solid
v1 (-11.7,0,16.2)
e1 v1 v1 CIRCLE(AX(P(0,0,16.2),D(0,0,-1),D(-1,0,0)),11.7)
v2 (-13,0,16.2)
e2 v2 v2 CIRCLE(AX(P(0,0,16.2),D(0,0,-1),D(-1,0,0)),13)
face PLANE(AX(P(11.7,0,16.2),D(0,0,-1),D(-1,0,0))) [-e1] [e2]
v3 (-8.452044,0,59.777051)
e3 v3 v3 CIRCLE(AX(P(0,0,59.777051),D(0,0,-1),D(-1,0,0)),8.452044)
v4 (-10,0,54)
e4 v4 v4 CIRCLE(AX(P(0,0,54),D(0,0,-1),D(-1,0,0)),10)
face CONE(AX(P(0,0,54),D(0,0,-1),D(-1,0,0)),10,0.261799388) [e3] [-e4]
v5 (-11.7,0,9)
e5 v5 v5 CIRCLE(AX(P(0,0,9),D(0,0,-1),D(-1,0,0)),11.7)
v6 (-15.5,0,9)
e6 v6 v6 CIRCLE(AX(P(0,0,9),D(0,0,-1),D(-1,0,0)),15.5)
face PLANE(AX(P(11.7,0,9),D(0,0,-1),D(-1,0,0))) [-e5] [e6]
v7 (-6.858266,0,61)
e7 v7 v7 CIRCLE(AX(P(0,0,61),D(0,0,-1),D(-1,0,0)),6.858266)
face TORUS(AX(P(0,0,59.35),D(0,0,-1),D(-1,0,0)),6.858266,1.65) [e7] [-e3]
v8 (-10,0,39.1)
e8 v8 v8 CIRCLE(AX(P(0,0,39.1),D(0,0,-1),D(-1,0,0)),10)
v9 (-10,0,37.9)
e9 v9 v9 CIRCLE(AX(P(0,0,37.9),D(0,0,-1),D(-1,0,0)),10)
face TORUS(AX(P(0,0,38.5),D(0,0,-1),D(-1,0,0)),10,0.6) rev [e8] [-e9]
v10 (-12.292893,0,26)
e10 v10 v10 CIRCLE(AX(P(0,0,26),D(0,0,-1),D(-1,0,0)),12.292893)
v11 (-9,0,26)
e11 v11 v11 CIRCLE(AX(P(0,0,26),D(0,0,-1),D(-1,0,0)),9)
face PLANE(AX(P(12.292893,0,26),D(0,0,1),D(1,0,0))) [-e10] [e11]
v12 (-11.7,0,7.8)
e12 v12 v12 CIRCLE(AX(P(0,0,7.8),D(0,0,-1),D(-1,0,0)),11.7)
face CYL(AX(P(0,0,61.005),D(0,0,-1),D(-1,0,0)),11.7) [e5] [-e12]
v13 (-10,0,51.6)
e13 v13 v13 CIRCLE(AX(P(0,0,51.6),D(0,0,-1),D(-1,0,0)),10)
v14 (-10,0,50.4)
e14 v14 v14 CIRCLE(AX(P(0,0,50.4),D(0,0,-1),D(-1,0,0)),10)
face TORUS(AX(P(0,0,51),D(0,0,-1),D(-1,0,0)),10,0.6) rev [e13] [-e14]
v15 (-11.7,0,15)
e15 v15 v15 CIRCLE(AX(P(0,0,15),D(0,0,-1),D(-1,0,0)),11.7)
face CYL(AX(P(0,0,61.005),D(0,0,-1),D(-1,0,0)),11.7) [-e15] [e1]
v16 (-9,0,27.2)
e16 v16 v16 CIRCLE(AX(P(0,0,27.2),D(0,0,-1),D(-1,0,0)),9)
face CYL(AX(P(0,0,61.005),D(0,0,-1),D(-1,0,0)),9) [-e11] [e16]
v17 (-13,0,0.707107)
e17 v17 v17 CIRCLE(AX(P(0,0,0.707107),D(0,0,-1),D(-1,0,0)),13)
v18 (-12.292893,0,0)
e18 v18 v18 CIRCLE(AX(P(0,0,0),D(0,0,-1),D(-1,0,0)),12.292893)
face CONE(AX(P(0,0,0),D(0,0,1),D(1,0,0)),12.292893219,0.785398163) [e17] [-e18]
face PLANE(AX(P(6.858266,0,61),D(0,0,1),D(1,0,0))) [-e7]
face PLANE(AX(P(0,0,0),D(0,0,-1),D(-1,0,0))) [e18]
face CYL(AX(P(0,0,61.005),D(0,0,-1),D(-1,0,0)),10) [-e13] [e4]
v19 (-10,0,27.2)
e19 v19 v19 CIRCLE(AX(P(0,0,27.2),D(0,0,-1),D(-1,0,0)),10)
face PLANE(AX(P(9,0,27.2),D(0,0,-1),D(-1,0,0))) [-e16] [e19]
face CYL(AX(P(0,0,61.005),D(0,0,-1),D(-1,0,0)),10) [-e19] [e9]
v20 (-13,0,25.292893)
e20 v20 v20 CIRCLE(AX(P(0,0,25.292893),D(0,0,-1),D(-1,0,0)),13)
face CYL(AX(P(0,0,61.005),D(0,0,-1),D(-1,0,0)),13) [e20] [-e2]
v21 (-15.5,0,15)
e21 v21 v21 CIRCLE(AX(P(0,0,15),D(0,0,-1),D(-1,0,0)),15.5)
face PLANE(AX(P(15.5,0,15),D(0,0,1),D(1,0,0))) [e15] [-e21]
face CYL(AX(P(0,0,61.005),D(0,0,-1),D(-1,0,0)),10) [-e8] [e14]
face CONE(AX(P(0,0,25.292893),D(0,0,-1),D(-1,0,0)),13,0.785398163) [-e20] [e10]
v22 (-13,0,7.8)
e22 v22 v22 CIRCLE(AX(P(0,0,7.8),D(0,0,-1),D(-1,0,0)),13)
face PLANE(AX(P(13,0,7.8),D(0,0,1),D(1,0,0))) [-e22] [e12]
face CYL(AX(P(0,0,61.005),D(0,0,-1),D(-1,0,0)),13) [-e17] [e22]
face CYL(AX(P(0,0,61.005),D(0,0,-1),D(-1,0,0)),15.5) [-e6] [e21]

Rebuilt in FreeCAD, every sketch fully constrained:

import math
import FreeCAD as App
import Part
import Sketcher
from FreeCAD import Vector
Q = App.Units.Quantity

doc = App.newDocument("Part")
body = doc.addObject("PartDesign::Body", "Body")

sketch1 = body.newObject("Sketcher::SketchObject", "Sketch")
sketch1.AttachmentSupport = (doc.getObject("XZ_Plane"), [""])
sketch1.MapMode = "FlatFace"
sketch1.addGeometry(Part.LineSegment(Vector(6.9, 61, 0), Vector(0, 61, 0)), False)
sketch1.addGeometry(Part.LineSegment(Vector(0, 61, 0), Vector(0, 0, 0)), False)
sketch1.addGeometry(Part.LineSegment(Vector(0, 0, 0), Vector(12.3, 0, 0)), False)
sketch1.addGeometry(Part.LineSegment(Vector(12.3, 0, 0), Vector(13, 0.7, 0)), False)
sketch1.addGeometry(Part.LineSegment(Vector(13, 0.7, 0), Vector(13, 7.8, 0)), False)
sketch1.addGeometry(Part.LineSegment(Vector(13, 7.8, 0), Vector(11.7, 7.8, 0)), False)
sketch1.addGeometry(Part.LineSegment(Vector(11.7, 7.8, 0), Vector(11.7, 9, 0)), False)
sketch1.addGeometry(Part.LineSegment(Vector(11.7, 9, 0), Vector(15.5, 9, 0)), False)
sketch1.addGeometry(Part.LineSegment(Vector(15.5, 9, 0), Vector(15.5, 15, 0)), False)
sketch1.addGeometry(Part.LineSegment(Vector(15.5, 15, 0), Vector(11.7, 15, 0)), False)
sketch1.addGeometry(Part.LineSegment(Vector(11.7, 15, 0), Vector(11.7, 16.2, 0)), False)
sketch1.addGeometry(Part.LineSegment(Vector(11.7, 16.2, 0), Vector(13, 16.2, 0)), False)
sketch1.addGeometry(Part.LineSegment(Vector(13, 16.2, 0), Vector(13, 25.3, 0)), False)
sketch1.addGeometry(Part.LineSegment(Vector(13, 25.3, 0), Vector(12.3, 26, 0)), False)
sketch1.addGeometry(Part.LineSegment(Vector(12.3, 26, 0), Vector(9, 26, 0)), False)
sketch1.addGeometry(Part.LineSegment(Vector(9, 26, 0), Vector(9, 27.2, 0)), False)
sketch1.addGeometry(Part.LineSegment(Vector(9, 27.2, 0), Vector(10, 27.2, 0)), False)
sketch1.addGeometry(Part.LineSegment(Vector(10, 27.2, 0), Vector(10, 37.9, 0)), False)
sketch1.addGeometry(Part.ArcOfCircle(Part.Circle(Vector(10, 38.5, 0), Vector(0, 0, 1), 0.6), math.radians(90), math.radians(270)), False)
sketch1.addGeometry(Part.LineSegment(Vector(10, 39.1, 0), Vector(10, 50.4, 0)), False)
sketch1.addGeometry(Part.ArcOfCircle(Part.Circle(Vector(10, 51, 0), Vector(0, 0, 1), 0.6), math.radians(90), math.radians(270)), False)
sketch1.addGeometry(Part.LineSegment(Vector(10, 51.6, 0), Vector(10, 54, 0)), False)
sketch1.addGeometry(Part.LineSegment(Vector(10, 54, 0), Vector(8.5, 59.8, 0)), False)
sketch1.addGeometry(Part.ArcOfCircle(Part.Circle(Vector(6.9, 59.4, 0), Vector(0, 0, 1), 1.6), math.radians(15), math.radians(90)), False)
sketch1.addConstraint(Sketcher.Constraint("Coincident", 0, 2, 1, 1))
sketch1.addConstraint(Sketcher.Constraint("Coincident", 1, 2, 2, 1))
sketch1.addConstraint(Sketcher.Constraint("Coincident", 2, 2, 3, 1))
sketch1.addConstraint(Sketcher.Constraint("Coincident", 3, 2, 4, 1))
sketch1.addConstraint(Sketcher.Constraint("Coincident", 4, 2, 5, 1))
sketch1.addConstraint(Sketcher.Constraint("Coincident", 5, 2, 6, 1))
sketch1.addConstraint(Sketcher.Constraint("Coincident", 6, 2, 7, 1))
sketch1.addConstraint(Sketcher.Constraint("Coincident", 7, 2, 8, 1))
sketch1.addConstraint(Sketcher.Constraint("Coincident", 8, 2, 9, 1))
sketch1.addConstraint(Sketcher.Constraint("Coincident", 9, 2, 10, 1))
sketch1.addConstraint(Sketcher.Constraint("Coincident", 10, 2, 11, 1))
sketch1.addConstraint(Sketcher.Constraint("Coincident", 11, 2, 12, 1))
sketch1.addConstraint(Sketcher.Constraint("Coincident", 12, 2, 13, 1))
sketch1.addConstraint(Sketcher.Constraint("Coincident", 13, 2, 14, 1))
sketch1.addConstraint(Sketcher.Constraint("Coincident", 14, 2, 15, 1))
sketch1.addConstraint(Sketcher.Constraint("Coincident", 15, 2, 16, 1))
sketch1.addConstraint(Sketcher.Constraint("Coincident", 16, 2, 17, 1))
sketch1.addConstraint(Sketcher.Constraint("Coincident", 17, 2, 18, 2))
sketch1.addConstraint(Sketcher.Constraint("Coincident", 18, 1, 19, 1))
sketch1.addConstraint(Sketcher.Constraint("Coincident", 19, 2, 20, 2))
sketch1.addConstraint(Sketcher.Constraint("Coincident", 20, 1, 21, 1))
sketch1.addConstraint(Sketcher.Constraint("Coincident", 21, 2, 22, 1))
sketch1.addConstraint(Sketcher.Constraint("Tangent", 22, 2, 23, 1))
sketch1.addConstraint(Sketcher.Constraint("Tangent", 23, 2, 0, 1))
sketch1.addConstraint(Sketcher.Constraint("Horizontal", 0))
sketch1.addConstraint(Sketcher.Constraint("Vertical", 1))
sketch1.addConstraint(Sketcher.Constraint("Horizontal", 2))
sketch1.addConstraint(Sketcher.Constraint("Vertical", 4))
sketch1.addConstraint(Sketcher.Constraint("Horizontal", 5))
sketch1.addConstraint(Sketcher.Constraint("Vertical", 6))
sketch1.addConstraint(Sketcher.Constraint("Horizontal", 7))
sketch1.addConstraint(Sketcher.Constraint("Vertical", 8))
sketch1.addConstraint(Sketcher.Constraint("Horizontal", 9))
sketch1.addConstraint(Sketcher.Constraint("Vertical", 10))
sketch1.addConstraint(Sketcher.Constraint("Horizontal", 11))
sketch1.addConstraint(Sketcher.Constraint("Vertical", 12))
sketch1.addConstraint(Sketcher.Constraint("Horizontal", 14))
sketch1.addConstraint(Sketcher.Constraint("Vertical", 15))
sketch1.addConstraint(Sketcher.Constraint("Horizontal", 16))
sketch1.addConstraint(Sketcher.Constraint("Vertical", 17))
sketch1.addConstraint(Sketcher.Constraint("Vertical", 19))
sketch1.addConstraint(Sketcher.Constraint("Vertical", 21))
sketch1.addConstraint(Sketcher.Constraint("Coincident", 1, 2, -1, 1))
sketch1.addConstraint(Sketcher.Constraint("Equal", 18, 20))
sketch1.addConstraint(Sketcher.Constraint("Perpendicular", 3, 13))
sketch1.addConstraint(Sketcher.Constraint("Vertical", 18, 3, 20, 3))
sketch1.addConstraint(Sketcher.Constraint("Vertical", 6, 2, 9, 2))
sketch1.addConstraint(Sketcher.Constraint("Vertical", 4, 2, 11, 2))
sketch1.addConstraint(Sketcher.Constraint("Vertical", 2, 2, 13, 2))
sketch1.addConstraint(Sketcher.Constraint("Vertical", 20, 3, 16, 2))
sketch1.addConstraint(Sketcher.Constraint("Vertical", 17, 2, 18, 1))
sketch1.addConstraint(Sketcher.Constraint("Vertical", 19, 2, 20, 1))
sketch1.addConstraint(Sketcher.Constraint("Equal", 6, 10))
sketch1.addConstraint(Sketcher.Constraint("Equal", 10, 15))
sketch1.addConstraint(Sketcher.Constraint("Equal", 3, 13))
sketch1.addConstraint(Sketcher.Constraint("Radius", 18, Q("0.6 mm")))
sketch1.addConstraint(Sketcher.Constraint("DistanceX", 16, 1, 16, 2, Q("1 mm")))
sketch1.addConstraint(Sketcher.Constraint("DistanceY", 1, 2, 1, 1, Q("61 mm")))
sketch1.addConstraint(Sketcher.Constraint("DistanceY", 8, 1, 8, 2, Q("6 mm")))
sketch1.addConstraint(Sketcher.Constraint("Angle", 22, Q("105 deg")))
sketch1.addConstraint(Sketcher.Constraint("Radius", 23, Q("1.65 mm")))
sketch1.addConstraint(Sketcher.Constraint("Distance", 3, Q("1 mm")))
sketch1.addConstraint(Sketcher.Constraint("DistanceX", 5, 2, 5, 1, Q("1.3 mm")))
sketch1.addConstraint(Sketcher.Constraint("DistanceX", 7, 1, 7, 2, Q("3.8 mm")))
sketch1.addConstraint(Sketcher.Constraint("DistanceY", 6, 1, 6, 2, Q("1.2 mm")))
sketch1.addConstraint(Sketcher.Constraint("DistanceY", 17, 1, 17, 2, Q("10.7 mm")))
sketch1.addConstraint(Sketcher.Constraint("DistanceY", 19, 1, 19, 2, Q("11.3 mm")))
sketch1.addConstraint(Sketcher.Constraint("DistanceY", 21, 1, 21, 2, Q("2.4 mm")))
sketch1.addConstraint(Sketcher.Constraint("DistanceX", -1, 1, 18, 3, Q("10 mm")))
sketch1.addConstraint(Sketcher.Constraint("DistanceY", -1, 1, 20, 3, Q("51 mm")))
sketch1.addConstraint(Sketcher.Constraint("DistanceX", -1, 1, 3, 2, Q("13 mm")))
sketch1.addConstraint(Sketcher.Constraint("DistanceY", -1, 1, 6, 2, Q("9 mm")))
revolution = body.newObject("PartDesign::Revolution", "Revolution")
revolution.Profile = sketch1
revolution.ReferenceAxis = (sketch1, ["V_Axis"])
revolution.Angle = 360

doc.recompute()
